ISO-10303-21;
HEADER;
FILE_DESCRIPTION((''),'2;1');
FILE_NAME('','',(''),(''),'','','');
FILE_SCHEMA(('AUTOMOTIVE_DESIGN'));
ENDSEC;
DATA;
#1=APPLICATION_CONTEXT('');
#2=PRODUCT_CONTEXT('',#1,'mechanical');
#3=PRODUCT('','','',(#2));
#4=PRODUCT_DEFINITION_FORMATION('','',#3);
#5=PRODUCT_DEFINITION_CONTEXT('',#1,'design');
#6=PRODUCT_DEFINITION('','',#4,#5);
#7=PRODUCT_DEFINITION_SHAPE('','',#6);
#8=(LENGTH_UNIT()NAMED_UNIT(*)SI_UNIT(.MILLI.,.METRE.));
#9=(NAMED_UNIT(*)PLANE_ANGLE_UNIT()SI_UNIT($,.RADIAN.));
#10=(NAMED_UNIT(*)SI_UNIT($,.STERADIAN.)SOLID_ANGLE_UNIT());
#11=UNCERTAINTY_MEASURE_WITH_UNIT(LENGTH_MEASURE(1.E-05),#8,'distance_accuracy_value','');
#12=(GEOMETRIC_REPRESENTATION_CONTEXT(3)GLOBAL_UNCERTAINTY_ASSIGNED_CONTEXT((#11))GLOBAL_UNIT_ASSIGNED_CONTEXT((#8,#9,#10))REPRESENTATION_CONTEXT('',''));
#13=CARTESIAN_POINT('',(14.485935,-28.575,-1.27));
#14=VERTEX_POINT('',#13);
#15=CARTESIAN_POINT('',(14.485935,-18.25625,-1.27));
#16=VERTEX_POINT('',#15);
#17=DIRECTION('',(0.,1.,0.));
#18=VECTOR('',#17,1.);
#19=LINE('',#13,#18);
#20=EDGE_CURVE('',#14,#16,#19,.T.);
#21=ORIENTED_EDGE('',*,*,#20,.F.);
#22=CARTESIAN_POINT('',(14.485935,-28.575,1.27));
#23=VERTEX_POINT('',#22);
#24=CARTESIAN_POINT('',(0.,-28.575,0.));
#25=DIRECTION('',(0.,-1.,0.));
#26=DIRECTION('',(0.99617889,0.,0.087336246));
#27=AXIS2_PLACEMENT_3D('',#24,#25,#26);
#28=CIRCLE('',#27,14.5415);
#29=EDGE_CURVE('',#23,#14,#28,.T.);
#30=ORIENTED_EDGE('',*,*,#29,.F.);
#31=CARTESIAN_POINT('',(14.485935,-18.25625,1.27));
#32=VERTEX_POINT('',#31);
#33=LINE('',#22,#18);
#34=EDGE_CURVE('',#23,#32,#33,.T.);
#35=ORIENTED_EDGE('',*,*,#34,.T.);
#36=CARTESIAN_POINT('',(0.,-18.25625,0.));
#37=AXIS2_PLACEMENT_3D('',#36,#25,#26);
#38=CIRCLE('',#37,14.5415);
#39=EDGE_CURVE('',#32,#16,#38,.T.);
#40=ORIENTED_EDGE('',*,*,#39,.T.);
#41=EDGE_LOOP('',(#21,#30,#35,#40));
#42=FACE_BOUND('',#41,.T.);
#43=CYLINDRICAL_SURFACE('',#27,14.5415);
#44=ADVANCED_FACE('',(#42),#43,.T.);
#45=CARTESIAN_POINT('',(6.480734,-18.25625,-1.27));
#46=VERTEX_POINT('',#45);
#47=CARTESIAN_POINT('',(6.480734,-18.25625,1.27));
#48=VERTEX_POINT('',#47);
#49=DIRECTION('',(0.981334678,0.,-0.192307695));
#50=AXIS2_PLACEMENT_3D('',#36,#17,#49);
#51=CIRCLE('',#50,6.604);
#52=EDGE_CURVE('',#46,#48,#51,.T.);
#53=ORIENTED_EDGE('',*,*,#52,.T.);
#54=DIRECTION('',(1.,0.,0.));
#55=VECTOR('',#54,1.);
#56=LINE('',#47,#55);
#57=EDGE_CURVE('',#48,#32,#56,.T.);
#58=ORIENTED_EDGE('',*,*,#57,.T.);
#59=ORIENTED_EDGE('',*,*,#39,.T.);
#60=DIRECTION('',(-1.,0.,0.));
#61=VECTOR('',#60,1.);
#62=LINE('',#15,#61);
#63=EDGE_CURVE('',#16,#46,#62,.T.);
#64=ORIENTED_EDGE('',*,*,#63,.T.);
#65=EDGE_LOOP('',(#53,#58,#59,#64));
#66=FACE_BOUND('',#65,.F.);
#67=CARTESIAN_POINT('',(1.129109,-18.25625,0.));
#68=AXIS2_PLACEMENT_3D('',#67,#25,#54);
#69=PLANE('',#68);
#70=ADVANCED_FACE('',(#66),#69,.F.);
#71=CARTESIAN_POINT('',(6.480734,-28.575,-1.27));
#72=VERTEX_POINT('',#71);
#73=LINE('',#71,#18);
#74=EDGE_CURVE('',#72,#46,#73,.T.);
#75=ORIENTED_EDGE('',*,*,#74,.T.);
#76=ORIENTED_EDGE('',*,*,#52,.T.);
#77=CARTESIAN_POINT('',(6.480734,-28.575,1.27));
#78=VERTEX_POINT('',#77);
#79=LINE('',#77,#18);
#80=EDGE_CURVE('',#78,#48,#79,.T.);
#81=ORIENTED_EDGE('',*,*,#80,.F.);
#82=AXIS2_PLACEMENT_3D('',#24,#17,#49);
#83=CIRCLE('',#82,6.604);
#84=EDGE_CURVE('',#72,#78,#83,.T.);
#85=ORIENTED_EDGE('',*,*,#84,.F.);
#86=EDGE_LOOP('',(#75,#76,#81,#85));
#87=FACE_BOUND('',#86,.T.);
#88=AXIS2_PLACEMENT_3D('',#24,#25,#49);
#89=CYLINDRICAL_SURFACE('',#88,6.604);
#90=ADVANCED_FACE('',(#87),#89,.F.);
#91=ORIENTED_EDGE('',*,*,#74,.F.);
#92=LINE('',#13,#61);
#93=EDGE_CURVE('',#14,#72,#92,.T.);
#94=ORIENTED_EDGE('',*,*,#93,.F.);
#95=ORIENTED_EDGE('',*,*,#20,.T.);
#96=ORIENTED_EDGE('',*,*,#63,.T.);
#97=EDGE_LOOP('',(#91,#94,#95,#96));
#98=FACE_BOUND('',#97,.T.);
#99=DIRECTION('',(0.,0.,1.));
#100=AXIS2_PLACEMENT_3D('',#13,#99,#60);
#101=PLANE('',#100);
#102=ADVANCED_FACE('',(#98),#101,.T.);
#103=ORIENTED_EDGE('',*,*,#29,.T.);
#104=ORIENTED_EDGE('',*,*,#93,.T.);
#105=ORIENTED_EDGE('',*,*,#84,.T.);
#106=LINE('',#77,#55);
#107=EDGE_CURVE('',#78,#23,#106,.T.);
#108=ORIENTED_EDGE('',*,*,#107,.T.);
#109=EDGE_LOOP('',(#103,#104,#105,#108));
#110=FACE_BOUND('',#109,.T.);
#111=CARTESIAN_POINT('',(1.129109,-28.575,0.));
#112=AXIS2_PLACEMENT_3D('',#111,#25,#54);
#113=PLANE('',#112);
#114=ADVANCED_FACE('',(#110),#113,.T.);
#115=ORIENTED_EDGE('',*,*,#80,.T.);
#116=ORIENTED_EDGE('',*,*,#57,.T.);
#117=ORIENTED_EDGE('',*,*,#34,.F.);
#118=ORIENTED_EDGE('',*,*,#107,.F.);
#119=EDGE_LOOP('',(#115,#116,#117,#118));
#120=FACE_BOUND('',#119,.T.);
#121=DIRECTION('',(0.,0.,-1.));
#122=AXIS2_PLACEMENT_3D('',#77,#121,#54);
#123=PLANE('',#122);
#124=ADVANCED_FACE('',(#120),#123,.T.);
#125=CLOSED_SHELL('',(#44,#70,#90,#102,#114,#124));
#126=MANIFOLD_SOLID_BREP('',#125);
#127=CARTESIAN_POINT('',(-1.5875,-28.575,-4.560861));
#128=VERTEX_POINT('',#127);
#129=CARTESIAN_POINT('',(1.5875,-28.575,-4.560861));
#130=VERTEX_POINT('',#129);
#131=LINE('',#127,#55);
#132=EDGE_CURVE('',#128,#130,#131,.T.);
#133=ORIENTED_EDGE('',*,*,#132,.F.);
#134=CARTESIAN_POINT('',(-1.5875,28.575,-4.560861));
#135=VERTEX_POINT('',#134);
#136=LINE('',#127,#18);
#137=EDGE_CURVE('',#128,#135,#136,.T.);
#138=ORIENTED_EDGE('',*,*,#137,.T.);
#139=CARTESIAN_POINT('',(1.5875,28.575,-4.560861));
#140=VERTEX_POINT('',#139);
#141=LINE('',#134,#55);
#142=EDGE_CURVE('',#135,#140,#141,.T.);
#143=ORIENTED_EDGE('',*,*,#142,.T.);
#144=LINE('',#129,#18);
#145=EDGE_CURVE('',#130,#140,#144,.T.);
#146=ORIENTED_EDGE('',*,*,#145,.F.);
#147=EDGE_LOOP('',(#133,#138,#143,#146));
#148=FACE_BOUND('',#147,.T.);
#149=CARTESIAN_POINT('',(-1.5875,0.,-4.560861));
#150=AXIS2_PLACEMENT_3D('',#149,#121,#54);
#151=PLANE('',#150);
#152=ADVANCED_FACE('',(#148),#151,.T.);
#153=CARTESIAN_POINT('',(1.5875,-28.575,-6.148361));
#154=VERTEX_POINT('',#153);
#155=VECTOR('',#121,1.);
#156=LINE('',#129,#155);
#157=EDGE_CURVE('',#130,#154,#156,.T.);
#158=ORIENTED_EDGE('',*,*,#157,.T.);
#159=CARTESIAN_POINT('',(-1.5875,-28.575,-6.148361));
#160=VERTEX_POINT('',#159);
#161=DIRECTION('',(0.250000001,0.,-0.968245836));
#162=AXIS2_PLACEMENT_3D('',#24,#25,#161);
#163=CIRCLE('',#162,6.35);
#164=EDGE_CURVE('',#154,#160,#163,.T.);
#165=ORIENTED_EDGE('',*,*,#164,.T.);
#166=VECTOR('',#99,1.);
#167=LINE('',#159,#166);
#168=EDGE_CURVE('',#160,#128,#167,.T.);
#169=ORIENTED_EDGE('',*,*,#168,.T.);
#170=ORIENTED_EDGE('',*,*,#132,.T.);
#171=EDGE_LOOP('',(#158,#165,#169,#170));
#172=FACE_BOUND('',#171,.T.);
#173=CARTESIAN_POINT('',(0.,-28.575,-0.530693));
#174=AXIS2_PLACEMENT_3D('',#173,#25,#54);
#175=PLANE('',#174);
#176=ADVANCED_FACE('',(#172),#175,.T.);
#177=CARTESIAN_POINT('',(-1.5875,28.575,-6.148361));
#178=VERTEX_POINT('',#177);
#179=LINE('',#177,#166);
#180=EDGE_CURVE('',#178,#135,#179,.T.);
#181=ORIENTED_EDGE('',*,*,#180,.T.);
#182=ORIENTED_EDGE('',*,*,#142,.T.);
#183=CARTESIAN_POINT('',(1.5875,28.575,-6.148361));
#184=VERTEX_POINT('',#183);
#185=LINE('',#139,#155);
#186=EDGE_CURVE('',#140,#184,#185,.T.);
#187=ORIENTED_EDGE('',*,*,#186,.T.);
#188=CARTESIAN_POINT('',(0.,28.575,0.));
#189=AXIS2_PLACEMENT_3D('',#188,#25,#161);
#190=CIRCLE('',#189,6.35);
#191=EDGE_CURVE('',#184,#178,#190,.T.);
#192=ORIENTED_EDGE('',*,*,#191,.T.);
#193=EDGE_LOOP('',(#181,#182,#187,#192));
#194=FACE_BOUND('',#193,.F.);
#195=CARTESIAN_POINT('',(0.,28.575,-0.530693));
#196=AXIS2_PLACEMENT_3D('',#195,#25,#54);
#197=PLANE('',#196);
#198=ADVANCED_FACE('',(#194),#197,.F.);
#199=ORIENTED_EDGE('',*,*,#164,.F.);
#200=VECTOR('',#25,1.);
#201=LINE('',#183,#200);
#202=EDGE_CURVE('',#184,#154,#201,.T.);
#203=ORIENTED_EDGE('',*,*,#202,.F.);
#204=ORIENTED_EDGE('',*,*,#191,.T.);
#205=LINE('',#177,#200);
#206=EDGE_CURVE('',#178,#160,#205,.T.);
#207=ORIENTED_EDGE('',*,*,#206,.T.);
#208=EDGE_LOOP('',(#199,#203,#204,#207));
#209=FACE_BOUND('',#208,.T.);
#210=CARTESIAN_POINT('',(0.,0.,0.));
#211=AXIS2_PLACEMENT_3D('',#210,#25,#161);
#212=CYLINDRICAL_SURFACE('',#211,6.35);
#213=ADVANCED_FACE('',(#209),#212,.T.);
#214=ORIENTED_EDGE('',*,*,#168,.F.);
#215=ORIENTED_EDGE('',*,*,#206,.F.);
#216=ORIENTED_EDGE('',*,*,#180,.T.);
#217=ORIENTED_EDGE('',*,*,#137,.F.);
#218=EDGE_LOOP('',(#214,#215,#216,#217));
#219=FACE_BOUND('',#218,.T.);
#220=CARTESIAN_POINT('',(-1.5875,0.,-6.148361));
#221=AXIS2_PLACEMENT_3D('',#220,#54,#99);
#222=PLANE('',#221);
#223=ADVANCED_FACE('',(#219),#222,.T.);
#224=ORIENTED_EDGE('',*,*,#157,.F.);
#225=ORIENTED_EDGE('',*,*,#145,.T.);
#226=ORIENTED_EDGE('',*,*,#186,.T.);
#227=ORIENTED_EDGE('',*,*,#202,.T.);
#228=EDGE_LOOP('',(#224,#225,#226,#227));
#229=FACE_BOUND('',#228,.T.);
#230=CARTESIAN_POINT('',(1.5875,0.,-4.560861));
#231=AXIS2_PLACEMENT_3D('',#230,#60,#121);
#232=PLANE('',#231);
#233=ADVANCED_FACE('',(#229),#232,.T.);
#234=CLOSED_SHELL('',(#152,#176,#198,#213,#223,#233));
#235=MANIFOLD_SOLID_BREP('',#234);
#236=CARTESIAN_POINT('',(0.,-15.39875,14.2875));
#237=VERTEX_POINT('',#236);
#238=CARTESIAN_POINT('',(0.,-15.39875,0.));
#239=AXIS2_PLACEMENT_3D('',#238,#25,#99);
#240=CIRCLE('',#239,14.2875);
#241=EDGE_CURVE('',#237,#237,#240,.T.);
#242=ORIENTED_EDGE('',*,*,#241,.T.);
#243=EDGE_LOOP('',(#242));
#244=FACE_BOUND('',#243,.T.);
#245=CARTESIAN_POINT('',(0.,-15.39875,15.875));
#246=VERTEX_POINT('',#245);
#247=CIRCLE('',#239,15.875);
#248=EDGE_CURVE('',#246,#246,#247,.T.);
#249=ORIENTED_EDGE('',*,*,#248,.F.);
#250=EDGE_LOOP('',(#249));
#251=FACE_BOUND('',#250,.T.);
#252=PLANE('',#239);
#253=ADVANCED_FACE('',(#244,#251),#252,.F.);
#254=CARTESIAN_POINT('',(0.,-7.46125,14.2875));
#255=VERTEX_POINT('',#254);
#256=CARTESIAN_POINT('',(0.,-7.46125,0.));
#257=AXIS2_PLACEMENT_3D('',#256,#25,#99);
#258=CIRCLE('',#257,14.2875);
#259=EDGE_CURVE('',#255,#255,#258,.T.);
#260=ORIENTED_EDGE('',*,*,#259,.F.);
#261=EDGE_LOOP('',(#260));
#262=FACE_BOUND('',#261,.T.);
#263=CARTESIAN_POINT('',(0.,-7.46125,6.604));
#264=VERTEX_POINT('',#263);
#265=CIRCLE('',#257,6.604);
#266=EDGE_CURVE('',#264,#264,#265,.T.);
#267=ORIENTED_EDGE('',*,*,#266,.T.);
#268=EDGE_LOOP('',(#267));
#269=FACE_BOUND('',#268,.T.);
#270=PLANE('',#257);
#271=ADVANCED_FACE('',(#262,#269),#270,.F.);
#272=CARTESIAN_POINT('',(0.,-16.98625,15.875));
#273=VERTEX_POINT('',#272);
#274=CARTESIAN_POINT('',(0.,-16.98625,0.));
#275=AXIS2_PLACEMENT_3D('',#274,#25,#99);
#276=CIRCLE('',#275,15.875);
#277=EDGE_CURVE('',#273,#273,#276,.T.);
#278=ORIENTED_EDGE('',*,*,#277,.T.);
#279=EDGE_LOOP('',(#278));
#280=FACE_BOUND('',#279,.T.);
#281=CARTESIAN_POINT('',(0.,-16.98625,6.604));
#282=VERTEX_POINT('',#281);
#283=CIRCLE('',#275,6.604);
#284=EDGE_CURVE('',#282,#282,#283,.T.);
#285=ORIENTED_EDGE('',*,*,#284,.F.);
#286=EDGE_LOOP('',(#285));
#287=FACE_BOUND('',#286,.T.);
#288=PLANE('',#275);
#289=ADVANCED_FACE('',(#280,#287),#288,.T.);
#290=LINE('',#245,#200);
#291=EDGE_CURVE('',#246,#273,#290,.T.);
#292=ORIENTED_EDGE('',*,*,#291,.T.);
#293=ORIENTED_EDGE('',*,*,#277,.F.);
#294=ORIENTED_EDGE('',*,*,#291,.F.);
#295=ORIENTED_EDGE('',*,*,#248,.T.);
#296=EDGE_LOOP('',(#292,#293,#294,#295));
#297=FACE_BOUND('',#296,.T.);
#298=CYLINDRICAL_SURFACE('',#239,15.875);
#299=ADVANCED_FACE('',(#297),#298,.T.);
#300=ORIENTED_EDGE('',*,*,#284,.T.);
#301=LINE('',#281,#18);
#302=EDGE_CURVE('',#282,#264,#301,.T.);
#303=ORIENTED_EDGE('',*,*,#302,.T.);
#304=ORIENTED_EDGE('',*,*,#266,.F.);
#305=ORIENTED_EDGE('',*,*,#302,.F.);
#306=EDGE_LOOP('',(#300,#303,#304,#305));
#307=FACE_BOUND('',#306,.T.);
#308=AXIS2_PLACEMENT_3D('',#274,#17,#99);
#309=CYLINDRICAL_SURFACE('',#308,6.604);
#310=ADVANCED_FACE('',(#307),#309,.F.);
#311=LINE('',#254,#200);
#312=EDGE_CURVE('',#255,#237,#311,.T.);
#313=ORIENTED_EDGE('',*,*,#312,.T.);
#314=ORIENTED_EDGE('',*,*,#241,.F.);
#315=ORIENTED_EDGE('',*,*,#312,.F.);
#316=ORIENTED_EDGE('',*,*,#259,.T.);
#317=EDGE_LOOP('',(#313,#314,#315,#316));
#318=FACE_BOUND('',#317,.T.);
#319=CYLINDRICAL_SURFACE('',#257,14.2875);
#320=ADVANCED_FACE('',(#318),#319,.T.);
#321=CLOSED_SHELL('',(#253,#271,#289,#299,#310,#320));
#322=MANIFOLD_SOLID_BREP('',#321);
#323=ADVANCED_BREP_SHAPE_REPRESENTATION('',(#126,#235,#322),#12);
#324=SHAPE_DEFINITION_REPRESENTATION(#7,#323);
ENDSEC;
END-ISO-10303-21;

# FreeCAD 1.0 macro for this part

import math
import FreeCAD as App
import Part
import Sketcher

V = App.Vector
Q = App.Units.Quantity

doc = App.newDocument("Part")
params = doc.addObject("Spreadsheet::Sheet", "Params")
for row, (alias, value) in enumerate([
    ("sketch1_radius", "0.25 in"),
    ("sketch1_width", "0.125 in"),
    ("sketch1_height", "0.0625 in"),
    ("pad1_length", "2.25 in"),
    ("sketch2_radius", "0.26 in"),
    ("pad2_length", "0.40625 in"),
    ("sketch3_width", "0.375 in"),
    ("sketch3_width2", "0.3125 in"),
    ("sketch3_height", "0.365 in"),
    ("revolution_angle", "360 deg"),
], start=1):
    params.set(f"A{row}", alias)
    params.set(f"B{row}", "=" + value)
    params.setAlias(f"B{row}", alias)

body = doc.addObject("PartDesign::Body", "Body")

sketch1 = doc.addObject("Sketcher::SketchObject", "Sketch")
body.addObject(sketch1)
sketch1.AttachmentSupport = (doc.XZ_Plane, [""])
sketch1.MapMode = "FlatFace"
sketch1.addGeometry(Part.LineSegment(V(1.6, -4.6, 0), V(1.6, -6.1, 0)), False)
sketch1.addGeometry(Part.ArcOfCircle(Part.Circle(V(0, 0, 0), V(0, 0, 1), 6.3), math.radians(-76), math.radians(256)), False)
sketch1.addGeometry(Part.LineSegment(V(-1.6, -6.1, 0), V(-1.6, -4.6, 0)), False)
sketch1.addGeometry(Part.LineSegment(V(-1.6, -4.6, 0), V(1.6, -4.6, 0)), False)
sketch1.addConstraint(Sketcher.Constraint("Coincident", 0, 2, 1, 1))
sketch1.addConstraint(Sketcher.Constraint("Coincident", 1, 2, 2, 1))
sketch1.addConstraint(Sketcher.Constraint("Coincident", 2, 2, 3, 1))
sketch1.addConstraint(Sketcher.Constraint("Coincident", 3, 2, 0, 1))
sketch1.addConstraint(Sketcher.Constraint("Vertical", 0))
sketch1.addConstraint(Sketcher.Constraint("Vertical", 2))
sketch1.addConstraint(Sketcher.Constraint("Horizontal", 3))
sketch1.addConstraint(Sketcher.Constraint("Coincident", 1, 3, -1, 1))
sketch1.addConstraint(Sketcher.Constraint("Horizontal", 0, 2, 1, 2))
sketch1.addConstraint(Sketcher.Constraint("Radius", 1, Q("0.25 in")))
sketch1.addConstraint(Sketcher.Constraint("DistanceX", 3, 1, 3, 2, Q("0.125 in")))
sketch1.addConstraint(Sketcher.Constraint("DistanceY", 0, 2, 0, 1, Q("0.0625 in")))
sketch1.setExpression("Constraints[9]", "Params.sketch1_radius")
sketch1.setExpression("Constraints[10]", "Params.sketch1_width")
sketch1.setExpression("Constraints[11]", "Params.sketch1_height")
pad1 = doc.addObject("PartDesign::Pad", "Pad")
body.addObject(pad1)
pad1.Profile = sketch1
pad1.setExpression("Length", "Params.pad1_length")
pad1.Midplane = True
body2 = doc.addObject("PartDesign::Body", "Body001")

sketch2 = doc.addObject("Sketcher::SketchObject", "Sketch001")
body2.addObject(sketch2)
sketch2.AttachmentSupport = (doc.getObject("XZ_Plane001"), [""])
sketch2.MapMode = "FlatFace"
sketch2.AttachmentOffset = App.Placement(V(0, 0, 1.125 * 25.4), App.Rotation())
sketch2.addGeometry(Part.ArcOfCircle(Part.Circle(V(0, 0, 0), V(0, 0, 1), 6.6), math.radians(11), math.radians(349)), False)
sketch2.addGeometry(Part.LineSegment(V(6.5, 1.3, 0), V(14.5, 1.3, 0)), False)
sketch2.addGeometry(Part.ArcOfCircle(Part.Circle(V(0, 0, 0), V(0, 0, 1), 14.5), math.radians(5), math.radians(355)), False)
sketch2.addGeometry(Part.LineSegment(V(14.5, -1.3, 0), V(6.5, -1.3, 0)), False)
sketch2.addConstraint(Sketcher.Constraint("Coincident", 0, 1, 1, 1))
sketch2.addConstraint(Sketcher.Constraint("Coincident", 1, 2, 2, 1))
sketch2.addConstraint(Sketcher.Constraint("Coincident", 2, 2, 3, 1))
sketch2.addConstraint(Sketcher.Constraint("Coincident", 3, 2, 0, 2))
sketch2.addConstraint(Sketcher.Constraint("Horizontal", 1))
sketch2.addConstraint(Sketcher.Constraint("Horizontal", 3))
sketch2.addConstraint(Sketcher.Constraint("Coincident", 0, 3, -1, 1))
sketch2.addConstraint(Sketcher.Constraint("Coincident", 2, 3, -1, 1))
sketch2.addConstraint(Sketcher.Constraint("Vertical", 1, 2, 2, 2))
sketch2.addConstraint(Sketcher.Constraint("Radius", 0, Q("0.26 in")))
sketch2.addConstraint(Sketcher.Constraint("Radius", 2, Q("0.5725 in")))
sketch2.addConstraint(Sketcher.Constraint("DistanceY", 2, 2, 1, 2, Q("0.1 in")))
sketch2.setExpression("Constraints[9]", "Params.sketch2_radius")
pad2 = doc.addObject("PartDesign::Pad", "Pad001")
body2.addObject(pad2)
pad2.Profile = sketch2
pad2.setExpression("Length", "Params.pad2_length")
pad2.Reversed = True
body3 = doc.addObject("PartDesign::Body", "Body002")

sketch3 = doc.addObject("Sketcher::SketchObject", "Sketch002")
body3.addObject(sketch3)
sketch3.AttachmentSupport = (doc.getObject("YZ_Plane002"), [""])
sketch3.MapMode = "FlatFace"
sketch3.addGeometry(Part.LineSegment(V(-17, 15.9, 0), V(-17, 6.6, 0)), False)
sketch3.addGeometry(Part.LineSegment(V(-17, 6.6, 0), V(-7.5, 6.6, 0)), False)
sketch3.addGeometry(Part.LineSegment(V(-7.5, 6.6, 0), V(-7.5, 14.3, 0)), False)
sketch3.addGeometry(Part.LineSegment(V(-7.5, 14.3, 0), V(-15.4, 14.3, 0)), False)
sketch3.addGeometry(Part.LineSegment(V(-15.4, 14.3, 0), V(-15.4, 15.9, 0)), False)
sketch3.addGeometry(Part.LineSegment(V(-15.4, 15.9, 0), V(-17, 15.9, 0)), False)
sketch3.addConstraint(Sketcher.Constraint("Coincident", 0, 2, 1, 1))
sketch3.addConstraint(Sketcher.Constraint("Coincident", 1, 2, 2, 1))
sketch3.addConstraint(Sketcher.Constraint("Coincident", 2, 2, 3, 1))
sketch3.addConstraint(Sketcher.Constraint("Coincident", 3, 2, 4, 1))
sketch3.addConstraint(Sketcher.Constraint("Coincident", 4, 2, 5, 1))
sketch3.addConstraint(Sketcher.Constraint("Coincident", 5, 2, 0, 1))
sketch3.addConstraint(Sketcher.Constraint("Vertical", 0))
sketch3.addConstraint(Sketcher.Constraint("Horizontal", 1))
sketch3.addConstraint(Sketcher.Constraint("Vertical", 2))
sketch3.addConstraint(Sketcher.Constraint("Horizontal", 3))
sketch3.addConstraint(Sketcher.Constraint("Vertical", 4))
sketch3.addConstraint(Sketcher.Constraint("Horizontal", 5))
sketch3.addConstraint(Sketcher.Constraint("Equal", 5, 4))
sketch3.addConstraint(Sketcher.Constraint("DistanceX", 1, 1, 1, 2, Q("0.375 in")))
sketch3.addConstraint(Sketcher.Constraint("DistanceX", 3, 2, 3, 1, Q("0.3125 in")))
sketch3.addConstraint(Sketcher.Constraint("DistanceY", 0, 2, 0, 1, Q("0.365 in")))
sketch3.addConstraint(Sketcher.Constraint("DistanceY", -1, 1, 0, 2, Q("0.26 in")))
sketch3.addConstraint(Sketcher.Constraint("DistanceX", 0, 2, -1, 1, 16.98625))
sketch3.setExpression("Constraints[13]", "Params.sketch3_width")
sketch3.setExpression("Constraints[14]", "Params.sketch3_width2")
sketch3.setExpression("Constraints[15]", "Params.sketch3_height")
revolution = doc.addObject("PartDesign::Revolution", "Revolution")
body3.addObject(revolution)
revolution.Profile = sketch3
revolution.ReferenceAxis = (sketch3, ["H_Axis"])
revolution.setExpression("Angle", "Params.revolution_angle")

doc.recompute()
